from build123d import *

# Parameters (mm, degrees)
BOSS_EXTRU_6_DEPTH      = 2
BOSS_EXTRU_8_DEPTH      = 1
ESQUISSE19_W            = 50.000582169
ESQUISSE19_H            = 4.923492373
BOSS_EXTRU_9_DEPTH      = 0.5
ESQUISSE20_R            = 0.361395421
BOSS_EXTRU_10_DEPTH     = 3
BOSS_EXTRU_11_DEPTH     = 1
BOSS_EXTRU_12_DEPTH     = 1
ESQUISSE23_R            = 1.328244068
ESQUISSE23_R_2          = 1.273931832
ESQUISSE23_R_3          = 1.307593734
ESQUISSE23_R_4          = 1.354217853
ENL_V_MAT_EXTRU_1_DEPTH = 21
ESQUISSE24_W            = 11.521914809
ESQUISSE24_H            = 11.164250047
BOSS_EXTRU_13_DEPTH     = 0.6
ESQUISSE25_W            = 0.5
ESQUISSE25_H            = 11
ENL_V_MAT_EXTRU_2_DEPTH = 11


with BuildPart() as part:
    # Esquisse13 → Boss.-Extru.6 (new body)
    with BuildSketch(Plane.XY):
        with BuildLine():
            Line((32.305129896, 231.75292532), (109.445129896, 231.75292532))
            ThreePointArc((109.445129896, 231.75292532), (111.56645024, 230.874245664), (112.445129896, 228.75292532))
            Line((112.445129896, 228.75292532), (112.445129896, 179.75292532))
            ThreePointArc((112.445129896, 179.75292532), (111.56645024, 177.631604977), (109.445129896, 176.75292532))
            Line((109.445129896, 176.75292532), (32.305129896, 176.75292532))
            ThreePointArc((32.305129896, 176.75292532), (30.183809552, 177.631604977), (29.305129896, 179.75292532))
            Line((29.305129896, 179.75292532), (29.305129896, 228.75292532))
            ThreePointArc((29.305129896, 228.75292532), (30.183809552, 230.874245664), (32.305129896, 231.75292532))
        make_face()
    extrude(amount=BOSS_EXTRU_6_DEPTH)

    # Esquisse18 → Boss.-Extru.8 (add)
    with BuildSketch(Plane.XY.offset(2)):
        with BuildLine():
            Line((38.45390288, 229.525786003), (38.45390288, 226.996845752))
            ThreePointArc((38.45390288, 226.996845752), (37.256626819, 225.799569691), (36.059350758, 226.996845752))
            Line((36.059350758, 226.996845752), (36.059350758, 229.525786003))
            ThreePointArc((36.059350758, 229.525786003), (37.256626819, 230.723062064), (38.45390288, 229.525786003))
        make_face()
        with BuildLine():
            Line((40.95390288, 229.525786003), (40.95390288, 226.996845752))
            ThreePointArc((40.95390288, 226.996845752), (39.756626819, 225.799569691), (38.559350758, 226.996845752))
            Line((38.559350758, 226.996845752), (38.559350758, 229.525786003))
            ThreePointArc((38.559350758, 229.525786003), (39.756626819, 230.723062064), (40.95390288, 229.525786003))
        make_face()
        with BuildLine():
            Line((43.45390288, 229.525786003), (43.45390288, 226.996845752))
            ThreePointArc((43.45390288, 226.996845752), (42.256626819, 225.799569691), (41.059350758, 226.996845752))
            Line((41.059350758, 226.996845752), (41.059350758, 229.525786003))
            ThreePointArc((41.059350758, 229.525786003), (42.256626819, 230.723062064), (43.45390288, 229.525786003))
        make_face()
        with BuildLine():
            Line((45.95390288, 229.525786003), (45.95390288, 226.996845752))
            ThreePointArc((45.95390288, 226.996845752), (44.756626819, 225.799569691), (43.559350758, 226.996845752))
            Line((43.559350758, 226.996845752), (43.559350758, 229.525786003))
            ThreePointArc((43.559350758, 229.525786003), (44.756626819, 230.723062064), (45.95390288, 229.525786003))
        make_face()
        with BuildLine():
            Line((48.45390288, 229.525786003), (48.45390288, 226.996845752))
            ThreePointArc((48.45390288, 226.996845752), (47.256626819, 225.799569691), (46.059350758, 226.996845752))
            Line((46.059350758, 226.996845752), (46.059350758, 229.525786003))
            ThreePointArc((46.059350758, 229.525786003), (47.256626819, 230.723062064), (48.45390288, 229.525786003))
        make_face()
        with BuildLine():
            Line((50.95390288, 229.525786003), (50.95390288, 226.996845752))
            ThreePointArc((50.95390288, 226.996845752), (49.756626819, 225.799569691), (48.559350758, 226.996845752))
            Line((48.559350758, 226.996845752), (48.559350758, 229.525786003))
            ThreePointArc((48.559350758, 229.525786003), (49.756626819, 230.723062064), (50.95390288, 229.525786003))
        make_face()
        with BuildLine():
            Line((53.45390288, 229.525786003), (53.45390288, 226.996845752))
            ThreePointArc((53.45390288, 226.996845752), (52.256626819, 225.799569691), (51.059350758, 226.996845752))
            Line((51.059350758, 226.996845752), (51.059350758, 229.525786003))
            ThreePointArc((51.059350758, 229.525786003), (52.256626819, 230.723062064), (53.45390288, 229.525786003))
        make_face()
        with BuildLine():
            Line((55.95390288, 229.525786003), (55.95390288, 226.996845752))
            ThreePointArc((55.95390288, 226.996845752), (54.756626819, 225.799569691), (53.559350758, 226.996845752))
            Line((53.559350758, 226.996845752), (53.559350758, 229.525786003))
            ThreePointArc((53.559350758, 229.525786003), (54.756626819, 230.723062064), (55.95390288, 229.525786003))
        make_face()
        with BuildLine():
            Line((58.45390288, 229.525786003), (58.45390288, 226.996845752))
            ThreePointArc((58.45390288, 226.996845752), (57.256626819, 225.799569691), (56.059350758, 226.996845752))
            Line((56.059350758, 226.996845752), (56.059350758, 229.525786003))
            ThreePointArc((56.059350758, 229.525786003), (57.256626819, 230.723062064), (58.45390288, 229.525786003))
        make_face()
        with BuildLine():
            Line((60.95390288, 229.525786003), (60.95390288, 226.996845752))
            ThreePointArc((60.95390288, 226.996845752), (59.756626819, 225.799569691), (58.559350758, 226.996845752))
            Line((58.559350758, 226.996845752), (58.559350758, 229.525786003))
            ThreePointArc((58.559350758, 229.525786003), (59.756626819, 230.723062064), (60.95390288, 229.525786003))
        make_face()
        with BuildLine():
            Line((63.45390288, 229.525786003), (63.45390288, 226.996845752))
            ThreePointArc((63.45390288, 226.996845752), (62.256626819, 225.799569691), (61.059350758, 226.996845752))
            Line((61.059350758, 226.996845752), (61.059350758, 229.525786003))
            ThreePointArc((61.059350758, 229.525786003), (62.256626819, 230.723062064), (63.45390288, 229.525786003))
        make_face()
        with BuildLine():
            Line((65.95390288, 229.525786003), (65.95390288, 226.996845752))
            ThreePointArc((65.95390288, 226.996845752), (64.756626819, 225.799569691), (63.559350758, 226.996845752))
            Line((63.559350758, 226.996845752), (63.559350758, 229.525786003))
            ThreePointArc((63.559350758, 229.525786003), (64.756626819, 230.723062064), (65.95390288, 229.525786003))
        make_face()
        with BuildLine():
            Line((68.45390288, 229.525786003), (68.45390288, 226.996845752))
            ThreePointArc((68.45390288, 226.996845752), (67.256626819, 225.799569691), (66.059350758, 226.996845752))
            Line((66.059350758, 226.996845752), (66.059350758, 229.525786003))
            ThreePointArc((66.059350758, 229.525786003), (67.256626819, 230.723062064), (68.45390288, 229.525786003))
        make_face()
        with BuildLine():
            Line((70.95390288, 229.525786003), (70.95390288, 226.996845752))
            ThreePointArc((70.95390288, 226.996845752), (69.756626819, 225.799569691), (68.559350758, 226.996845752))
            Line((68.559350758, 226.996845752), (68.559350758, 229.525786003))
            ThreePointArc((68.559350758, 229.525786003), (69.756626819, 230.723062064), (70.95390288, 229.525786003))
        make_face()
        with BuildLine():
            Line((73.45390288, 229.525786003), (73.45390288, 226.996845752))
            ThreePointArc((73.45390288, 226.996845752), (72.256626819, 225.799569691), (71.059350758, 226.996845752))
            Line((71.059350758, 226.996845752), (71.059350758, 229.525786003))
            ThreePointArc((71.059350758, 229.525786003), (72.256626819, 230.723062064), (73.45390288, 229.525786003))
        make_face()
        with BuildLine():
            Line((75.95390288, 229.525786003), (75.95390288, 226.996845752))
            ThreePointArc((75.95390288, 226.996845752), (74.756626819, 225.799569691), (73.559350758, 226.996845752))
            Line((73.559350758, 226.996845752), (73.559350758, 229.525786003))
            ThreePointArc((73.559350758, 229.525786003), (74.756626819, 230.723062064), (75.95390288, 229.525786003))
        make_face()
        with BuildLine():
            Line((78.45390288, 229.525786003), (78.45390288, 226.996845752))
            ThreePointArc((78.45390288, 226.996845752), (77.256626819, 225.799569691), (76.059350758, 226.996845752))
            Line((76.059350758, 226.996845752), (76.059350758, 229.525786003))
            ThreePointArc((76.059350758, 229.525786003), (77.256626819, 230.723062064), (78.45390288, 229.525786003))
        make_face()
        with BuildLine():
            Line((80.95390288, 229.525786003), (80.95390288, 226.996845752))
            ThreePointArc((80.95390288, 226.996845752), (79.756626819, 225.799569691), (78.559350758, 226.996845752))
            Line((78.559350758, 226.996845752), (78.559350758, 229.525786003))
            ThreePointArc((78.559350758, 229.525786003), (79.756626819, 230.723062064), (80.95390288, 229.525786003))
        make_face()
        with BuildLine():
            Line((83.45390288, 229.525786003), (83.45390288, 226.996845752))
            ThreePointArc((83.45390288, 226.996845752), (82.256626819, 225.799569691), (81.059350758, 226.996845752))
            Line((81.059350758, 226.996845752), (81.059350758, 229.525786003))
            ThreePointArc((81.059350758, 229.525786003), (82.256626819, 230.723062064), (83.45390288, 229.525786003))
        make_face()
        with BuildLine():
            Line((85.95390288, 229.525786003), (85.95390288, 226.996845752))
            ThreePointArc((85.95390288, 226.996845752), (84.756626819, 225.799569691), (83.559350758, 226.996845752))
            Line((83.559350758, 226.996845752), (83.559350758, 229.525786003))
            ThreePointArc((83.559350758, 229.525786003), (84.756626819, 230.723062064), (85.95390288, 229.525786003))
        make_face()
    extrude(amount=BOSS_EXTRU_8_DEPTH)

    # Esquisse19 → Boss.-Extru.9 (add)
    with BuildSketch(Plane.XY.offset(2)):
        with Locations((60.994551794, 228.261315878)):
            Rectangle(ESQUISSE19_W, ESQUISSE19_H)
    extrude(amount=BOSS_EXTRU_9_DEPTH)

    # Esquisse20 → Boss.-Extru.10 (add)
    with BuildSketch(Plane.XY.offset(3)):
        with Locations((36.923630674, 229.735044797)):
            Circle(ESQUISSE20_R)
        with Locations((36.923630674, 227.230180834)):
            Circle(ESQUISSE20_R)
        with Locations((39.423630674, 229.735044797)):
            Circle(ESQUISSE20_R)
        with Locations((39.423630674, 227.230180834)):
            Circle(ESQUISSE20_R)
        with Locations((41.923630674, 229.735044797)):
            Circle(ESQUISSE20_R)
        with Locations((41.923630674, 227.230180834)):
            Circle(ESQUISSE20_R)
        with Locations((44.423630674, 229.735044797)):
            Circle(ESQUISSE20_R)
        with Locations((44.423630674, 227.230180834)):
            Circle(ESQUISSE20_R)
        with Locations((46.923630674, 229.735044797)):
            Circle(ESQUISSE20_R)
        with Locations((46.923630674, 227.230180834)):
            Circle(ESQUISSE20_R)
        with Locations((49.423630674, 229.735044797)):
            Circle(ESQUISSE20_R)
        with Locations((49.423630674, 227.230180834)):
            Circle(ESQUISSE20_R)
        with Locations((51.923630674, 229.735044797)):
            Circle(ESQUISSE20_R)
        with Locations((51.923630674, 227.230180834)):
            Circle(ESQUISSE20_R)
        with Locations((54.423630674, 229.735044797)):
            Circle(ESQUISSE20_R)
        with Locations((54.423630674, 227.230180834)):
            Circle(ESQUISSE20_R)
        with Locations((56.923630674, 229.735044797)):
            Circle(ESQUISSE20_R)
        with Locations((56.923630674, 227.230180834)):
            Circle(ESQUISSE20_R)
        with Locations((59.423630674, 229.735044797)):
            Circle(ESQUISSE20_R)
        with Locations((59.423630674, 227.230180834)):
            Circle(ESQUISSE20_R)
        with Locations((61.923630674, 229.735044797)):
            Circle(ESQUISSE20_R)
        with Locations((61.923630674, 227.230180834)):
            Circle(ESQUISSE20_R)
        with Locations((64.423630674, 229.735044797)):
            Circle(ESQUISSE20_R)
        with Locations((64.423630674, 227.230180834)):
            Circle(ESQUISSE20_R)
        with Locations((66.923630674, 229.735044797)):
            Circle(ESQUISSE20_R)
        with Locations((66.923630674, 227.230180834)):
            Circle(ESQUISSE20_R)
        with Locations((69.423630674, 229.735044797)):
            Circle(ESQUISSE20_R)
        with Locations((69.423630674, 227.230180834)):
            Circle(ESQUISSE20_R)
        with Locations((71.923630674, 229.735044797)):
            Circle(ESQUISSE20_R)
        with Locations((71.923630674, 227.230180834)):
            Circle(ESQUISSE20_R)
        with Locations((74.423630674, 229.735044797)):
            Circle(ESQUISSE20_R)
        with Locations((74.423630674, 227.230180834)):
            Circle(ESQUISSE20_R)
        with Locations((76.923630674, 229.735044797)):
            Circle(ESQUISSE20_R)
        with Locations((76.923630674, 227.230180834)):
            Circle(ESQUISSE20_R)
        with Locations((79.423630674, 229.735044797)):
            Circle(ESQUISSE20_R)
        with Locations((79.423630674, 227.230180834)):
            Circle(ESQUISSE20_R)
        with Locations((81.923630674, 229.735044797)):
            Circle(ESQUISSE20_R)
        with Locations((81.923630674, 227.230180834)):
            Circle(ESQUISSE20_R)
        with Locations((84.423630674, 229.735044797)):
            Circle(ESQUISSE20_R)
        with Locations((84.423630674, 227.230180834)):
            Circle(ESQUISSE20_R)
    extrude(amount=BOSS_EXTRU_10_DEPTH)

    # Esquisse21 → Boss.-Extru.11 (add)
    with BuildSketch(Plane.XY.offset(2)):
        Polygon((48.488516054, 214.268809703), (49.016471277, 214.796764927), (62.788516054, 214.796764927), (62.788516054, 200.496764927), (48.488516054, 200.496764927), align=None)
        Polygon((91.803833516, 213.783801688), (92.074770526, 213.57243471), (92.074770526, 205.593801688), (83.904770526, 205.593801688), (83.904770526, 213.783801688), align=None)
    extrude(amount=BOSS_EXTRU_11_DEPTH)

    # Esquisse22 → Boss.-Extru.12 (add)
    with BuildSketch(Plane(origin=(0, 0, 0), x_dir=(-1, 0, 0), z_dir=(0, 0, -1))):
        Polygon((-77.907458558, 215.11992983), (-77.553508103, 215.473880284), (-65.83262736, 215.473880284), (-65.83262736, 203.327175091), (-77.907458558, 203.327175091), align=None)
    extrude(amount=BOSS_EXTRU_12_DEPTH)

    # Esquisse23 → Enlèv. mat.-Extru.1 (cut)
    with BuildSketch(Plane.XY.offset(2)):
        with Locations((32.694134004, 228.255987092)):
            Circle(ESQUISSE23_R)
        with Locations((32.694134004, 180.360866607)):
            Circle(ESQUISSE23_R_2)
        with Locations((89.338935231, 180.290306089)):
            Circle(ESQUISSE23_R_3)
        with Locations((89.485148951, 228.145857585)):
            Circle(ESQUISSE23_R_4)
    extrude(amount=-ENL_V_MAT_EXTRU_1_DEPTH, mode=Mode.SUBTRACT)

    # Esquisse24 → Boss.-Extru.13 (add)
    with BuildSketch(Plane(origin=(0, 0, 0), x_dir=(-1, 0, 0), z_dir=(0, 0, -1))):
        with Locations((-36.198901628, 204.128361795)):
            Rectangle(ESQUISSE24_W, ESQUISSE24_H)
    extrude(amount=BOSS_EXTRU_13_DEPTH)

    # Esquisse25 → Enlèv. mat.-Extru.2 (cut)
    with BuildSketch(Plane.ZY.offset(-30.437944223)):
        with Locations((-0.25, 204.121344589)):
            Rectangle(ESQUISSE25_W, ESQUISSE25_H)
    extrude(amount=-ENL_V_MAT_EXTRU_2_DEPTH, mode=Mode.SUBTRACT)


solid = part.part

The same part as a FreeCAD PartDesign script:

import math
import FreeCAD as App
import Part
import Sketcher
from FreeCAD import Vector
Q = App.Units.Quantity

doc = App.newDocument("Part")
body = doc.addObject("PartDesign::Body", "Body")

sketch1 = body.newObject("Sketcher::SketchObject", "Sketch")
sketch1.AttachmentSupport = (doc.getObject("XY_Plane"), [""])
sketch1.MapMode = "FlatFace"
sketch1.addGeometry([
    Part.LineSegment(Vector(109.4, 231.8, 0), Vector(32.3, 231.8, 0)),
    Part.ArcOfCircle(Part.Circle(Vector(32.3, 228.8, 0), Vector(0, 0, 1), 3), math.radians(90), math.radians(180)),
    Part.LineSegment(Vector(29.3, 228.8, 0), Vector(29.3, 179.8, 0)),
    Part.ArcOfCircle(Part.Circle(Vector(32.3, 179.8, 0), Vector(0, 0, 1), 3), math.radians(180), math.radians(270)),
    Part.LineSegment(Vector(32.3, 176.8, 0), Vector(109.4, 176.8, 0)),
    Part.ArcOfCircle(Part.Circle(Vector(109.4, 179.8, 0), Vector(0, 0, 1), 3), math.radians(-90), math.radians(0)),
    Part.LineSegment(Vector(112.4, 179.8, 0), Vector(112.4, 228.8, 0)),
    Part.ArcOfCircle(Part.Circle(Vector(109.4, 228.8, 0), Vector(0, 0, 1), 3), math.radians(0), math.radians(90)),
], False)
sketch1.addConstraint([
    Sketcher.Constraint("Tangent", 0, 2, 1, 1),
    Sketcher.Constraint("Tangent", 1, 2, 2, 1),
    Sketcher.Constraint("Tangent", 2, 2, 3, 1),
    Sketcher.Constraint("Tangent", 3, 2, 4, 1),
    Sketcher.Constraint("Tangent", 4, 2, 5, 1),
    Sketcher.Constraint("Tangent", 5, 2, 6, 1),
    Sketcher.Constraint("Tangent", 6, 2, 7, 1),
    Sketcher.Constraint("Tangent", 7, 2, 0, 1),
    Sketcher.Constraint("Horizontal", 0),
    Sketcher.Constraint("Vertical", 2),
    Sketcher.Constraint("Horizontal", 4),
    Sketcher.Constraint("Vertical", 6),
    Sketcher.Constraint("Equal", 1, 3),
    Sketcher.Constraint("Equal", 3, 5),
    Sketcher.Constraint("Equal", 5, 7),
    Sketcher.Constraint("Radius", 1, 3.0),
    Sketcher.Constraint("DistanceY", 2, 2, 2, 1, 49.0),
    Sketcher.Constraint("DistanceX", 0, 2, 0, 1, 77.14),
    Sketcher.Constraint("DistanceX", -1, 1, 1, 3, 32.30513),
    Sketcher.Constraint("DistanceY", -1, 1, 1, 3, 228.752925),
])
pad1 = body.newObject("PartDesign::Pad", "Pad")
pad1.Profile = sketch1
pad1.Length = 2

sketch2 = body.newObject("Sketcher::SketchObject", "Sketch001")
sketch2.AttachmentSupport = (doc.getObject("XY_Plane"), [""])
sketch2.MapMode = "FlatFace"
sketch2.AttachmentOffset = App.Placement(Vector(0, 0, 2), App.Rotation())
sketch2.addGeometry([
    Part.LineSegment(Vector(38.5, 227, 0), Vector(38.5, 229.5, 0)),
    Part.ArcOfCircle(Part.Circle(Vector(37.3, 229.5, 0), Vector(0, 0, 1), 1.2), math.radians(0), math.radians(180)),
    Part.LineSegment(Vector(36.1, 229.5, 0), Vector(36.1, 227, 0)),
    Part.ArcOfCircle(Part.Circle(Vector(37.3, 227, 0), Vector(0, 0, 1), 1.2), math.radians(180), math.radians(360)),
    Part.LineSegment(Vector(41, 227, 0), Vector(41, 229.5, 0)),
    Part.ArcOfCircle(Part.Circle(Vector(39.8, 229.5, 0), Vector(0, 0, 1), 1.2), math.radians(0), math.radians(180)),
    Part.LineSegment(Vector(38.6, 229.5, 0), Vector(38.6, 227, 0)),
    Part.ArcOfCircle(Part.Circle(Vector(39.8, 227, 0), Vector(0, 0, 1), 1.2), math.radians(180), math.radians(360)),
    Part.LineSegment(Vector(43.5, 227, 0), Vector(43.5, 229.5, 0)),
    Part.ArcOfCircle(Part.Circle(Vector(42.3, 229.5, 0), Vector(0, 0, 1), 1.2), math.radians(0), math.radians(180)),
    Part.LineSegment(Vector(41.1, 229.5, 0), Vector(41.1, 227, 0)),
    Part.ArcOfCircle(Part.Circle(Vector(42.3, 227, 0), Vector(0, 0, 1), 1.2), math.radians(180), math.radians(360)),
    Part.LineSegment(Vector(46, 227, 0), Vector(46, 229.5, 0)),
    Part.ArcOfCircle(Part.Circle(Vector(44.8, 229.5, 0), Vector(0, 0, 1), 1.2), math.radians(0), math.radians(180)),
    Part.LineSegment(Vector(43.6, 229.5, 0), Vector(43.6, 227, 0)),
    Part.ArcOfCircle(Part.Circle(Vector(44.8, 227, 0), Vector(0, 0, 1), 1.2), math.radians(180), math.radians(360)),
    Part.LineSegment(Vector(48.5, 227, 0), Vector(48.5, 229.5, 0)),
    Part.ArcOfCircle(Part.Circle(Vector(47.3, 229.5, 0), Vector(0, 0, 1), 1.2), math.radians(0), math.radians(180)),
    Part.LineSegment(Vector(46.1, 229.5, 0), Vector(46.1, 227, 0)),
    Part.ArcOfCircle(Part.Circle(Vector(47.3, 227, 0), Vector(0, 0, 1), 1.2), math.radians(180), math.radians(360)),
    Part.LineSegment(Vector(51, 227, 0), Vector(51, 229.5, 0)),
    Part.ArcOfCircle(Part.Circle(Vector(49.8, 229.5, 0), Vector(0, 0, 1), 1.2), math.radians(0), math.radians(180)),
    Part.LineSegment(Vector(48.6, 229.5, 0), Vector(48.6, 227, 0)),
    Part.ArcOfCircle(Part.Circle(Vector(49.8, 227, 0), Vector(0, 0, 1), 1.2), math.radians(180), math.radians(360)),
    Part.LineSegment(Vector(53.5, 227, 0), Vector(53.5, 229.5, 0)),
    Part.ArcOfCircle(Part.Circle(Vector(52.3, 229.5, 0), Vector(0, 0, 1), 1.2), math.radians(0), math.radians(180)),
    Part.LineSegment(Vector(51.1, 229.5, 0), Vector(51.1, 227, 0)),
    Part.ArcOfCircle(Part.Circle(Vector(52.3, 227, 0), Vector(0, 0, 1), 1.2), math.radians(180), math.radians(360)),
    Part.LineSegment(Vector(56, 227, 0), Vector(56, 229.5, 0)),
    Part.ArcOfCircle(Part.Circle(Vector(54.8, 229.5, 0), Vector(0, 0, 1), 1.2), math.radians(0), math.radians(180)),
    Part.LineSegment(Vector(53.6, 229.5, 0), Vector(53.6, 227, 0)),
    Part.ArcOfCircle(Part.Circle(Vector(54.8, 227, 0), Vector(0, 0, 1), 1.2), math.radians(180), math.radians(360)),
    Part.LineSegment(Vector(58.5, 227, 0), Vector(58.5, 229.5, 0)),
    Part.ArcOfCircle(Part.Circle(Vector(57.3, 229.5, 0), Vector(0, 0, 1), 1.2), math.radians(0), math.radians(180)),
    Part.LineSegment(Vector(56.1, 229.5, 0), Vector(56.1, 227, 0)),
    Part.ArcOfCircle(Part.Circle(Vector(57.3, 227, 0), Vector(0, 0, 1), 1.2), math.radians(180), math.radians(360)),
    Part.LineSegment(Vector(61, 227, 0), Vector(61, 229.5, 0)),
    Part.ArcOfCircle(Part.Circle(Vector(59.8, 229.5, 0), Vector(0, 0, 1), 1.2), math.radians(0), math.radians(180)),
    Part.LineSegment(Vector(58.6, 229.5, 0), Vector(58.6, 227, 0)),
    Part.ArcOfCircle(Part.Circle(Vector(59.8, 227, 0), Vector(0, 0, 1), 1.2), math.radians(180), math.radians(360)),
    Part.LineSegment(Vector(63.5, 227, 0), Vector(63.5, 229.5, 0)),
    Part.ArcOfCircle(Part.Circle(Vector(62.3, 229.5, 0), Vector(0, 0, 1), 1.2), math.radians(0), math.radians(180)),
    Part.LineSegment(Vector(61.1, 229.5, 0), Vector(61.1, 227, 0)),
    Part.ArcOfCircle(Part.Circle(Vector(62.3, 227, 0), Vector(0, 0, 1), 1.2), math.radians(180), math.radians(360)),
    Part.LineSegment(Vector(66, 227, 0), Vector(66, 229.5, 0)),
    Part.ArcOfCircle(Part.Circle(Vector(64.8, 229.5, 0), Vector(0, 0, 1), 1.2), math.radians(0), math.radians(180)),
    Part.LineSegment(Vector(63.6, 229.5, 0), Vector(63.6, 227, 0)),
    Part.ArcOfCircle(Part.Circle(Vector(64.8, 227, 0), Vector(0, 0, 1), 1.2), math.radians(180), math.radians(360)),
    Part.LineSegment(Vector(68.5, 227, 0), Vector(68.5, 229.5, 0)),
    Part.ArcOfCircle(Part.Circle(Vector(67.3, 229.5, 0), Vector(0, 0, 1), 1.2), math.radians(0), math.radians(180)),
    Part.LineSegment(Vector(66.1, 229.5, 0), Vector(66.1, 227, 0)),
    Part.ArcOfCircle(Part.Circle(Vector(67.3, 227, 0), Vector(0, 0, 1), 1.2), math.radians(180), math.radians(360)),
    Part.LineSegment(Vector(71, 227, 0), Vector(71, 229.5, 0)),
    Part.ArcOfCircle(Part.Circle(Vector(69.8, 229.5, 0), Vector(0, 0, 1), 1.2), math.radians(0), math.radians(180)),
    Part.LineSegment(Vector(68.6, 229.5, 0), Vector(68.6, 227, 0)),
    Part.ArcOfCircle(Part.Circle(Vector(69.8, 227, 0), Vector(0, 0, 1), 1.2), math.radians(180), math.radians(360)),
    Part.LineSegment(Vector(73.5, 227, 0), Vector(73.5, 229.5, 0)),
    Part.ArcOfCircle(Part.Circle(Vector(72.3, 229.5, 0), Vector(0, 0, 1), 1.2), math.radians(0), math.radians(180)),
    Part.LineSegment(Vector(71.1, 229.5, 0), Vector(71.1, 227, 0)),
    Part.ArcOfCircle(Part.Circle(Vector(72.3, 227, 0), Vector(0, 0, 1), 1.2), math.radians(180), math.radians(360)),
    Part.LineSegment(Vector(76, 227, 0), Vector(76, 229.5, 0)),
    Part.ArcOfCircle(Part.Circle(Vector(74.8, 229.5, 0), Vector(0, 0, 1), 1.2), math.radians(0), math.radians(180)),
    Part.LineSegment(Vector(73.6, 229.5, 0), Vector(73.6, 227, 0)),
    Part.ArcOfCircle(Part.Circle(Vector(74.8, 227, 0), Vector(0, 0, 1), 1.2), math.radians(180), math.radians(360)),
    Part.LineSegment(Vector(78.5, 227, 0), Vector(78.5, 229.5, 0)),
    Part.ArcOfCircle(Part.Circle(Vector(77.3, 229.5, 0), Vector(0, 0, 1), 1.2), math.radians(0), math.radians(180)),
    Part.LineSegment(Vector(76.1, 229.5, 0), Vector(76.1, 227, 0)),
    Part.ArcOfCircle(Part.Circle(Vector(77.3, 227, 0), Vector(0, 0, 1), 1.2), math.radians(180), math.radians(360)),
    Part.LineSegment(Vector(81, 227, 0), Vector(81, 229.5, 0)),
    Part.ArcOfCircle(Part.Circle(Vector(79.8, 229.5, 0), Vector(0, 0, 1), 1.2), math.radians(0), math.radians(180)),
    Part.LineSegment(Vector(78.6, 229.5, 0), Vector(78.6, 227, 0)),
    Part.ArcOfCircle(Part.Circle(Vector(79.8, 227, 0), Vector(0, 0, 1), 1.2), math.radians(180), math.radians(360)),
    Part.LineSegment(Vector(83.5, 227, 0), Vector(83.5, 229.5, 0)),
    Part.ArcOfCircle(Part.Circle(Vector(82.3, 229.5, 0), Vector(0, 0, 1), 1.2), math.radians(0), math.radians(180)),
    Part.LineSegment(Vector(81.1, 229.5, 0), Vector(81.1, 227, 0)),
    Part.ArcOfCircle(Part.Circle(Vector(82.3, 227, 0), Vector(0, 0, 1), 1.2), math.radians(180), math.radians(360)),
    Part.LineSegment(Vector(86, 227, 0), Vector(86, 229.5, 0)),
    Part.ArcOfCircle(Part.Circle(Vector(84.8, 229.5, 0), Vector(0, 0, 1), 1.2), math.radians(0), math.radians(180)),
    Part.LineSegment(Vector(83.6, 229.5, 0), Vector(83.6, 227, 0)),
    Part.ArcOfCircle(Part.Circle(Vector(84.8, 227, 0), Vector(0, 0, 1), 1.2), math.radians(180), math.radians(360)),
], False)
sketch2.addConstraint([
    Sketcher.Constraint("Tangent", 0, 2, 1, 1),
    Sketcher.Constraint("Tangent", 1, 2, 2, 1),
    Sketcher.Constraint("Tangent", 2, 2, 3, 1),
    Sketcher.Constraint("Tangent", 3, 2, 0, 1),
    Sketcher.Constraint("Tangent", 4, 2, 5, 1),
    Sketcher.Constraint("Tangent", 5, 2, 6, 1),
    Sketcher.Constraint("Tangent", 6, 2, 7, 1),
    Sketcher.Constraint("Tangent", 7, 2, 4, 1),
    Sketcher.Constraint("Tangent", 8, 2, 9, 1),
    Sketcher.Constraint("Tangent", 9, 2, 10, 1),
    Sketcher.Constraint("Tangent", 10, 2, 11, 1),
    Sketcher.Constraint("Tangent", 11, 2, 8, 1),
    Sketcher.Constraint("Tangent", 12, 2, 13, 1),
    Sketcher.Constraint("Tangent", 13, 2, 14, 1),
    Sketcher.Constraint("Tangent", 14, 2, 15, 1),
    Sketcher.Constraint("Tangent", 15, 2, 12, 1),
    Sketcher.Constraint("Tangent", 16, 2, 17, 1),
    Sketcher.Constraint("Tangent", 17, 2, 18, 1),
    Sketcher.Constraint("Tangent", 18, 2, 19, 1),
    Sketcher.Constraint("Tangent", 19, 2, 16, 1),
    Sketcher.Constraint("Tangent", 20, 2, 21, 1),
    Sketcher.Constraint("Tangent", 21, 2, 22, 1),
    Sketcher.Constraint("Tangent", 22, 2, 23, 1),
    Sketcher.Constraint("Tangent", 23, 2, 20, 1),
    Sketcher.Constraint("Tangent", 24, 2, 25, 1),
    Sketcher.Constraint("Tangent", 25, 2, 26, 1),
    Sketcher.Constraint("Tangent", 26, 2, 27, 1),
    Sketcher.Constraint("Tangent", 27, 2, 24, 1),
    Sketcher.Constraint("Tangent", 28, 2, 29, 1),
    Sketcher.Constraint("Tangent", 29, 2, 30, 1),
    Sketcher.Constraint("Tangent", 30, 2, 31, 1),
    Sketcher.Constraint("Tangent", 31, 2, 28, 1),
    Sketcher.Constraint("Tangent", 32, 2, 33, 1),
    Sketcher.Constraint("Tangent", 33, 2, 34, 1),
    Sketcher.Constraint("Tangent", 34, 2, 35, 1),
    Sketcher.Constraint("Tangent", 35, 2, 32, 1),
    Sketcher.Constraint("Tangent", 36, 2, 37, 1),
    Sketcher.Constraint("Tangent", 37, 2, 38, 1),
    Sketcher.Constraint("Tangent", 38, 2, 39, 1),
    Sketcher.Constraint("Tangent", 39, 2, 36, 1),
    Sketcher.Constraint("Tangent", 40, 2, 41, 1),
    Sketcher.Constraint("Tangent", 41, 2, 42, 1),
    Sketcher.Constraint("Tangent", 42, 2, 43, 1),
    Sketcher.Constraint("Tangent", 43, 2, 40, 1),
    Sketcher.Constraint("Tangent", 44, 2, 45, 1),
    Sketcher.Constraint("Tangent", 45, 2, 46, 1),
    Sketcher.Constraint("Tangent", 46, 2, 47, 1),
    Sketcher.Constraint("Tangent", 47, 2, 44, 1),
    Sketcher.Constraint("Tangent", 48, 2, 49, 1),
    Sketcher.Constraint("Tangent", 49, 2, 50, 1),
    Sketcher.Constraint("Tangent", 50, 2, 51, 1),
    Sketcher.Constraint("Tangent", 51, 2, 48, 1),
    Sketcher.Constraint("Tangent", 52, 2, 53, 1),
    Sketcher.Constraint("Tangent", 53, 2, 54, 1),
    Sketcher.Constraint("Tangent", 54, 2, 55, 1),
    Sketcher.Constraint("Tangent", 55, 2, 52, 1),
    Sketcher.Constraint("Tangent", 56, 2, 57, 1),
    Sketcher.Constraint("Tangent", 57, 2, 58, 1),
    Sketcher.Constraint("Tangent", 58, 2, 59, 1),
    Sketcher.Constraint("Tangent", 59, 2, 56, 1),
    Sketcher.Constraint("Tangent", 60, 2, 61, 1),
    Sketcher.Constraint("Tangent", 61, 2, 62, 1),
    Sketcher.Constraint("Tangent", 62, 2, 63, 1),
    Sketcher.Constraint("Tangent", 63, 2, 60, 1),
    Sketcher.Constraint("Tangent", 64, 2, 65, 1),
    Sketcher.Constraint("Tangent", 65, 2, 66, 1),
    Sketcher.Constraint("Tangent", 66, 2, 67, 1),
    Sketcher.Constraint("Tangent", 67, 2, 64, 1),
    Sketcher.Constraint("Tangent", 68, 2, 69, 1),
    Sketcher.Constraint("Tangent", 69, 2, 70, 1),
    Sketcher.Constraint("Tangent", 70, 2, 71, 1),
    Sketcher.Constraint("Tangent", 71, 2, 68, 1),
    Sketcher.Constraint("Tangent", 72, 2, 73, 1),
    Sketcher.Constraint("Tangent", 73, 2, 74, 1),
    Sketcher.Constraint("Tangent", 74, 2, 75, 1),
    Sketcher.Constraint("Tangent", 75, 2, 72, 1),
    Sketcher.Constraint("Tangent", 76, 2, 77, 1),
    Sketcher.Constraint("Tangent", 77, 2, 78, 1),
    Sketcher.Constraint("Tangent", 78, 2, 79, 1),
    Sketcher.Constraint("Tangent", 79, 2, 76, 1),
    Sketcher.Constraint("Vertical", 0),
    Sketcher.Constraint("Vertical", 2),
    Sketcher.Constraint("Vertical", 4),
    Sketcher.Constraint("Vertical", 6),
    Sketcher.Constraint("Vertical", 8),
    Sketcher.Constraint("Vertical", 10),
    Sketcher.Constraint("Vertical", 12),
    Sketcher.Constraint("Vertical", 14),
    Sketcher.Constraint("Vertical", 16),
    Sketcher.Constraint("Vertical", 18),
    Sketcher.Constraint("Vertical", 20),
    Sketcher.Constraint("Vertical", 22),
    Sketcher.Constraint("Vertical", 24),
    Sketcher.Constraint("Vertical", 26),
    Sketcher.Constraint("Vertical", 28),
    Sketcher.Constraint("Vertical", 30),
    Sketcher.Constraint("Vertical", 32),
    Sketcher.Constraint("Vertical", 34),
    Sketcher.Constraint("Vertical", 36),
    Sketcher.Constraint("Vertical", 38),
    Sketcher.Constraint("Vertical", 40),
    Sketcher.Constraint("Vertical", 42),
    Sketcher.Constraint("Vertical", 44),
    Sketcher.Constraint("Vertical", 46),
    Sketcher.Constraint("Vertical", 48),
    Sketcher.Constraint("Vertical", 50),
    Sketcher.Constraint("Vertical", 52),
    Sketcher.Constraint("Vertical", 54),
    Sketcher.Constraint("Vertical", 56),
    Sketcher.Constraint("Vertical", 58),
    Sketcher.Constraint("Vertical", 60),
    Sketcher.Constraint("Vertical", 62),
    Sketcher.Constraint("Vertical", 64),
    Sketcher.Constraint("Vertical", 66),
    Sketcher.Constraint("Vertical", 68),
    Sketcher.Constraint("Vertical", 70),
    Sketcher.Constraint("Vertical", 72),
    Sketcher.Constraint("Vertical", 74),
    Sketcher.Constraint("Vertical", 76),
    Sketcher.Constraint("Vertical", 78),
    Sketcher.Constraint("Equal", 3, 5),
    Sketcher.Constraint("Equal", 7, 9),
    Sketcher.Constraint("Equal", 11, 13),
    Sketcher.Constraint("Equal", 15, 17),
    Sketcher.Constraint("Equal", 19, 21),
    Sketcher.Constraint("Equal", 23, 25),
    Sketcher.Constraint("Equal", 27, 29),
    Sketcher.Constraint("Equal", 31, 33),
    Sketcher.Constraint("Equal", 35, 37),
    Sketcher.Constraint("Equal", 39, 41),
    Sketcher.Constraint("Equal", 43, 45),
    Sketcher.Constraint("Equal", 47, 49),
    Sketcher.Constraint("Equal", 51, 53),
    Sketcher.Constraint("Equal", 55, 57),
    Sketcher.Constraint("Equal", 59, 61),
    Sketcher.Constraint("Equal", 63, 65),
    Sketcher.Constraint("Equal", 67, 69),
    Sketcher.Constraint("Equal", 71, 73),
    Sketcher.Constraint("Equal", 75, 77),
    Sketcher.Constraint("Horizontal", 1, 3, 5, 3),
    Sketcher.Constraint("Horizontal", 3, 3, 7, 3),
    Sketcher.Constraint("Horizontal", 5, 3, 9, 3),
    Sketcher.Constraint("Horizontal", 7, 3, 11, 3),
    Sketcher.Constraint("Horizontal", 9, 3, 13, 3),
    Sketcher.Constraint("Horizontal", 11, 3, 15, 3),
    Sketcher.Constraint("Horizontal", 13, 3, 17, 3),
    Sketcher.Constraint("Horizontal", 15, 3, 19, 3),
    Sketcher.Constraint("Horizontal", 17, 3, 21, 3),
    Sketcher.Constraint("Horizontal", 19, 3, 23, 3),
    Sketcher.Constraint("Horizontal", 21, 3, 25, 3),
    Sketcher.Constraint("Horizontal", 23, 3, 27, 3),
    Sketcher.Constraint("Horizontal", 25, 3, 29, 3),
    Sketcher.Constraint("Horizontal", 27, 3, 31, 3),
    Sketcher.Constraint("Horizontal", 29, 3, 33, 3),
    Sketcher.Constraint("Horizontal", 31, 3, 35, 3),
    Sketcher.Constraint("Horizontal", 33, 3, 37, 3),
    Sketcher.Constraint("Horizontal", 35, 3, 39, 3),
    Sketcher.Constraint("Horizontal", 37, 3, 41, 3),
    Sketcher.Constraint("Horizontal", 39, 3, 43, 3),
    Sketcher.Constraint("Horizontal", 41, 3, 45, 3),
    Sketcher.Constraint("Horizontal", 43, 3, 47, 3),
    Sketcher.Constraint("Horizontal", 45, 3, 49, 3),
    Sketcher.Constraint("Horizontal", 47, 3, 51, 3),
    Sketcher.Constraint("Horizontal", 49, 3, 53, 3),
    Sketcher.Constraint("Horizontal", 51, 3, 55, 3),
    Sketcher.Constraint("Horizontal", 53, 3, 57, 3),
    Sketcher.Constraint("Horizontal", 55, 3, 59, 3),
    Sketcher.Constraint("Horizontal", 57, 3, 61, 3),
    Sketcher.Constraint("Horizontal", 59, 3, 63, 3),
    Sketcher.Constraint("Horizontal", 61, 3, 65, 3),
    Sketcher.Constraint("Horizontal", 63, 3, 67, 3),
    Sketcher.Constraint("Horizontal", 65, 3, 69, 3),
    Sketcher.Constraint("Horizontal", 67, 3, 71, 3),
    Sketcher.Constraint("Horizontal", 69, 3, 73, 3),
    Sketcher.Constraint("Horizontal", 71, 3, 75, 3),
    Sketcher.Constraint("Horizontal", 73, 3, 77, 3),
    Sketcher.Constraint("Horizontal", 75, 3, 79, 3),
    Sketcher.Constraint("Radius", 1, 1.197276),
    Sketcher.Constraint("DistanceY", 0, 1, 0, 2, 2.52894),
    Sketcher.Constraint("DistanceX", -1, 1, 1, 2, 36.059351),
    Sketcher.Constraint("DistanceX", -1, 1, 5, 2, 38.559351),
    Sketcher.Constraint("DistanceX", -1, 1, 9, 2, 41.059351),
    Sketcher.Constraint("DistanceX", -1, 1, 13, 2, 43.559351),
    Sketcher.Constraint("DistanceX", -1, 1, 17, 2, 46.059351),
    Sketcher.Constraint("DistanceX", -1, 1, 21, 2, 48.559351),
    Sketcher.Constraint("DistanceX", -1, 1, 25, 2, 51.059351),
    Sketcher.Constraint("DistanceX", -1, 1, 29, 2, 53.559351),
    Sketcher.Constraint("DistanceX", -1, 1, 33, 2, 56.059351),
    Sketcher.Constraint("DistanceX", -1, 1, 37, 2, 58.559351),
    Sketcher.Constraint("DistanceX", -1, 1, 41, 2, 61.059351),
    Sketcher.Constraint("DistanceX", -1, 1, 45, 2, 63.559351),
    Sketcher.Constraint("DistanceX", -1, 1, 49, 2, 66.059351),
    Sketcher.Constraint("DistanceX", -1, 1, 53, 2, 68.559351),
    Sketcher.Constraint("DistanceX", -1, 1, 57, 2, 71.059351),
    Sketcher.Constraint("DistanceX", -1, 1, 61, 2, 73.559351),
    Sketcher.Constraint("DistanceX", -1, 1, 65, 2, 76.059351),
    Sketcher.Constraint("DistanceX", -1, 1, 69, 2, 78.559351),
    Sketcher.Constraint("DistanceX", -1, 1, 73, 2, 81.059351),
    Sketcher.Constraint("DistanceX", -1, 1, 77, 2, 83.559351),
    Sketcher.Constraint("DistanceY", -1, 1, 1, 3, 229.525786),
])
pad2 = body.newObject("PartDesign::Pad", "Pad001")
pad2.Profile = sketch2
pad2.Length = 1

sketch3 = body.newObject("Sketcher::SketchObject", "Sketch002")
sketch3.AttachmentSupport = (doc.getObject("XY_Plane"), [""])
sketch3.MapMode = "FlatFace"
sketch3.AttachmentOffset = App.Placement(Vector(0, 0, 2), App.Rotation())
sketch3.addGeometry([
    Part.LineSegment(Vector(36, 230.7, 0), Vector(36, 225.8, 0)),
    Part.LineSegment(Vector(36, 225.8, 0), Vector(86, 225.8, 0)),
    Part.LineSegment(Vector(86, 225.8, 0), Vector(86, 230.7, 0)),
    Part.LineSegment(Vector(86, 230.7, 0), Vector(36, 230.7, 0)),
], False)
sketch3.addConstraint([
    Sketcher.Constraint("Coincident", 0, 2, 1, 1),
    Sketcher.Constraint("Coincident", 1, 2, 2, 1),
    Sketcher.Constraint("Coincident", 2, 2, 3, 1),
    Sketcher.Constraint("Coincident", 3, 2, 0, 1),
    Sketcher.Constraint("Vertical", 0),
    Sketcher.Constraint("Horizontal", 1),
    Sketcher.Constraint("Vertical", 2),
    Sketcher.Constraint("Horizontal", 3),
    Sketcher.Constraint("DistanceX", 1, 1, 1, 2, 50.000582),
    Sketcher.Constraint("DistanceY", 0, 2, 0, 1, 4.923492),
    Sketcher.Constraint("DistanceX", -1, 1, 0, 2, 35.994261),
    Sketcher.Constraint("DistanceY", -1, 1, 0, 2, 225.79957),
])
pad3 = body.newObject("PartDesign::Pad", "Pad002")
pad3.Profile = sketch3
pad3.Length = 0.5

sketch4 = body.newObject("Sketcher::SketchObject", "Sketch003")
sketch4.AttachmentSupport = (doc.getObject("XY_Plane"), [""])
sketch4.MapMode = "FlatFace"
sketch4.AttachmentOffset = App.Placement(Vector(0, 0, 3), App.Rotation())
sketch4.addGeometry([
    Part.Circle(Vector(36.92, 229.74, 0), Vector(0, 0, 1), 0.36),
    Part.Circle(Vector(36.92, 227.23, 0), Vector(0, 0, 1), 0.36),
    Part.Circle(Vector(39.42, 229.74, 0), Vector(0, 0, 1), 0.36),
    Part.Circle(Vector(39.42, 227.23, 0), Vector(0, 0, 1), 0.36),
    Part.Circle(Vector(41.92, 229.74, 0), Vector(0, 0, 1), 0.36),
    Part.Circle(Vector(41.92, 227.23, 0), Vector(0, 0, 1), 0.36),
    Part.Circle(Vector(44.42, 229.74, 0), Vector(0, 0, 1), 0.36),
    Part.Circle(Vector(44.42, 227.23, 0), Vector(0, 0, 1), 0.36),
    Part.Circle(Vector(46.92, 229.74, 0), Vector(0, 0, 1), 0.36),
    Part.Circle(Vector(46.92, 227.23, 0), Vector(0, 0, 1), 0.36),
    Part.Circle(Vector(49.42, 229.74, 0), Vector(0, 0, 1), 0.36),
    Part.Circle(Vector(49.42, 227.23, 0), Vector(0, 0, 1), 0.36),
    Part.Circle(Vector(51.92, 229.74, 0), Vector(0, 0, 1), 0.36),
    Part.Circle(Vector(51.92, 227.23, 0), Vector(0, 0, 1), 0.36),
    Part.Circle(Vector(54.42, 229.74, 0), Vector(0, 0, 1), 0.36),
    Part.Circle(Vector(54.42, 227.23, 0), Vector(0, 0, 1), 0.36),
    Part.Circle(Vector(56.92, 229.74, 0), Vector(0, 0, 1), 0.36),
    Part.Circle(Vector(56.92, 227.23, 0), Vector(0, 0, 1), 0.36),
    Part.Circle(Vector(59.42, 229.74, 0), Vector(0, 0, 1), 0.36),
    Part.Circle(Vector(59.42, 227.23, 0), Vector(0, 0, 1), 0.36),
    Part.Circle(Vector(61.92, 229.74, 0), Vector(0, 0, 1), 0.36),
    Part.Circle(Vector(61.92, 227.23, 0), Vector(0, 0, 1), 0.36),
    Part.Circle(Vector(64.42, 229.74, 0), Vector(0, 0, 1), 0.36),
    Part.Circle(Vector(64.42, 227.23, 0), Vector(0, 0, 1), 0.36),
    Part.Circle(Vector(66.92, 229.74, 0), Vector(0, 0, 1), 0.36),
    Part.Circle(Vector(66.92, 227.23, 0), Vector(0, 0, 1), 0.36),
    Part.Circle(Vector(69.42, 229.74, 0), Vector(0, 0, 1), 0.36),
    Part.Circle(Vector(69.42, 227.23, 0), Vector(0, 0, 1), 0.36),
    Part.Circle(Vector(71.92, 229.74, 0), Vector(0, 0, 1), 0.36),
    Part.Circle(Vector(71.92, 227.23, 0), Vector(0, 0, 1), 0.36),
    Part.Circle(Vector(74.42, 229.74, 0), Vector(0, 0, 1), 0.36),
    Part.Circle(Vector(74.42, 227.23, 0), Vector(0, 0, 1), 0.36),
    Part.Circle(Vector(76.92, 229.74, 0), Vector(0, 0, 1), 0.36),
    Part.Circle(Vector(76.92, 227.23, 0), Vector(0, 0, 1), 0.36),
    Part.Circle(Vector(79.42, 229.74, 0), Vector(0, 0, 1), 0.36),
    Part.Circle(Vector(79.42, 227.23, 0), Vector(0, 0, 1), 0.36),
    Part.Circle(Vector(81.92, 229.74, 0), Vector(0, 0, 1), 0.36),
    Part.Circle(Vector(81.92, 227.23, 0), Vector(0, 0, 1), 0.36),
    Part.Circle(Vector(84.42, 229.74, 0), Vector(0, 0, 1), 0.36),
    Part.Circle(Vector(84.42, 227.23, 0), Vector(0, 0, 1), 0.36),
], False)
sketch4.addConstraint([
    Sketcher.Constraint("Equal", 0, 1),
    Sketcher.Constraint("Equal", 1, 2),
    Sketcher.Constraint("Equal", 2, 3),
    Sketcher.Constraint("Equal", 3, 4),
    Sketcher.Constraint("Equal", 4, 5),
    Sketcher.Constraint("Equal", 5, 6),
    Sketcher.Constraint("Equal", 6, 7),
    Sketcher.Constraint("Equal", 7, 8),
    Sketcher.Constraint("Equal", 8, 9),
    Sketcher.Constraint("Equal", 9, 10),
    Sketcher.Constraint("Equal", 10, 11),
    Sketcher.Constraint("Equal", 11, 12),
    Sketcher.Constraint("Equal", 12, 13),
    Sketcher.Constraint("Equal", 13, 14),
    Sketcher.Constraint("Equal", 14, 15),
    Sketcher.Constraint("Equal", 15, 16),
    Sketcher.Constraint("Equal", 16, 17),
    Sketcher.Constraint("Equal", 17, 18),
    Sketcher.Constraint("Equal", 18, 19),
    Sketcher.Constraint("Equal", 19, 20),
    Sketcher.Constraint("Equal", 20, 21),
    Sketcher.Constraint("Equal", 21, 22),
    Sketcher.Constraint("Equal", 22, 23),
    Sketcher.Constraint("Equal", 23, 24),
    Sketcher.Constraint("Equal", 24, 25),
    Sketcher.Constraint("Equal", 25, 26),
    Sketcher.Constraint("Equal", 26, 27),
    Sketcher.Constraint("Equal", 27, 28),
    Sketcher.Constraint("Equal", 28, 29),
    Sketcher.Constraint("Equal", 29, 30),
    Sketcher.Constraint("Equal", 30, 31),
    Sketcher.Constraint("Equal", 31, 32),
    Sketcher.Constraint("Equal", 32, 33),
    Sketcher.Constraint("Equal", 33, 34),
    Sketcher.Constraint("Equal", 34, 35),
    Sketcher.Constraint("Equal", 35, 36),
    Sketcher.Constraint("Equal", 36, 37),
    Sketcher.Constraint("Equal", 37, 38),
    Sketcher.Constraint("Equal", 38, 39),
    Sketcher.Constraint("Horizontal", 0, 3, 2, 3),
    Sketcher.Constraint("Horizontal", 1, 3, 3, 3),
    Sketcher.Constraint("Horizontal", 2, 3, 4, 3),
    Sketcher.Constraint("Horizontal", 3, 3, 5, 3),
    Sketcher.Constraint("Horizontal", 4, 3, 6, 3),
    Sketcher.Constraint("Horizontal", 5, 3, 7, 3),
    Sketcher.Constraint("Horizontal", 6, 3, 8, 3),
    Sketcher.Constraint("Horizontal", 7, 3, 9, 3),
    Sketcher.Constraint("Horizontal", 8, 3, 10, 3),
    Sketcher.Constraint("Horizontal", 9, 3, 11, 3),
    Sketcher.Constraint("Horizontal", 10, 3, 12, 3),
    Sketcher.Constraint("Horizontal", 11, 3, 13, 3),
    Sketcher.Constraint("Horizontal", 12, 3, 14, 3),
    Sketcher.Constraint("Horizontal", 13, 3, 15, 3),
    Sketcher.Constraint("Horizontal", 14, 3, 16, 3),
    Sketcher.Constraint("Horizontal", 15, 3, 17, 3),
    Sketcher.Constraint("Horizontal", 16, 3, 18, 3),
    Sketcher.Constraint("Horizontal", 17, 3, 19, 3),
    Sketcher.Constraint("Horizontal", 18, 3, 20, 3),
    Sketcher.Constraint("Horizontal", 19, 3, 21, 3),
    Sketcher.Constraint("Horizontal", 20, 3, 22, 3),
    Sketcher.Constraint("Horizontal", 21, 3, 23, 3),
    Sketcher.Constraint("Horizontal", 22, 3, 24, 3),
    Sketcher.Constraint("Horizontal", 23, 3, 25, 3),
    Sketcher.Constraint("Horizontal", 24, 3, 26, 3),
    Sketcher.Constraint("Horizontal", 25, 3, 27, 3),
    Sketcher.Constraint("Horizontal", 26, 3, 28, 3),
    Sketcher.Constraint("Horizontal", 27, 3, 29, 3),
    Sketcher.Constraint("Horizontal", 28, 3, 30, 3),
    Sketcher.Constraint("Horizontal", 29, 3, 31, 3),
    Sketcher.Constraint("Horizontal", 30, 3, 32, 3),
    Sketcher.Constraint("Horizontal", 31, 3, 33, 3),
    Sketcher.Constraint("Horizontal", 32, 3, 34, 3),
    Sketcher.Constraint("Horizontal", 33, 3, 35, 3),
    Sketcher.Constraint("Horizontal", 34, 3, 36, 3),
    Sketcher.Constraint("Horizontal", 35, 3, 37, 3),
    Sketcher.Constraint("Horizontal", 36, 3, 38, 3),
    Sketcher.Constraint("Horizontal", 37, 3, 39, 3),
    Sketcher.Constraint("Vertical", 0, 3, 1, 3),
    Sketcher.Constraint("Vertical", 2, 3, 3, 3),
    Sketcher.Constraint("Vertical", 4, 3, 5, 3),
    Sketcher.Constraint("Vertical", 6, 3, 7, 3),
    Sketcher.Constraint("Vertical", 8, 3, 9, 3),
    Sketcher.Constraint("Vertical", 10, 3, 11, 3),
    Sketcher.Constraint("Vertical", 12, 3, 13, 3),
    Sketcher.Constraint("Vertical", 14, 3, 15, 3),
    Sketcher.Constraint("Vertical", 16, 3, 17, 3),
    Sketcher.Constraint("Vertical", 18, 3, 19, 3),
    Sketcher.Constraint("Vertical", 20, 3, 21, 3),
    Sketcher.Constraint("Vertical", 22, 3, 23, 3),
    Sketcher.Constraint("Vertical", 24, 3, 25, 3),
    Sketcher.Constraint("Vertical", 26, 3, 27, 3),
    Sketcher.Constraint("Vertical", 28, 3, 29, 3),
    Sketcher.Constraint("Vertical", 30, 3, 31, 3),
    Sketcher.Constraint("Vertical", 32, 3, 33, 3),
    Sketcher.Constraint("Vertical", 34, 3, 35, 3),
    Sketcher.Constraint("Vertical", 36, 3, 37, 3),
    Sketcher.Constraint("Vertical", 38, 3, 39, 3),
    Sketcher.Constraint("DistanceX", 0, 3, 4, 3, 5.0),
    Sketcher.Constraint("DistanceX", 2, 3, 6, 3, 5.0),
    Sketcher.Constraint("DistanceX", 4, 3, 8, 3, 5.0),
    Sketcher.Constraint("DistanceX", 6, 3, 10, 3, 5.0),
    Sketcher.Constraint("DistanceX", 8, 3, 12, 3, 5.0),
    Sketcher.Constraint("DistanceX", 10, 3, 14, 3, 5.0),
    Sketcher.Constraint("DistanceX", 12, 3, 16, 3, 5.0),
    Sketcher.Constraint("DistanceX", 14, 3, 18, 3, 5.0),
    Sketcher.Constraint("DistanceX", 16, 3, 20, 3, 5.0),
    Sketcher.Constraint("DistanceX", 18, 3, 22, 3, 5.0),
    Sketcher.Constraint("DistanceX", 20, 3, 24, 3, 5.0),
    Sketcher.Constraint("DistanceX", 22, 3, 26, 3, 5.0),
    Sketcher.Constraint("DistanceX", 24, 3, 28, 3, 5.0),
    Sketcher.Constraint("DistanceX", 26, 3, 30, 3, 5.0),
    Sketcher.Constraint("DistanceX", 28, 3, 32, 3, 5.0),
    Sketcher.Constraint("DistanceX", 30, 3, 34, 3, 5.0),
    Sketcher.Constraint("DistanceX", 32, 3, 36, 3, 5.0),
    Sketcher.Constraint("DistanceX", 34, 3, 38, 3, 5.0),
    Sketcher.Constraint("DistanceX", 0, 3, 2, 3, 2.5),
    Sketcher.Constraint("Diameter", 0, 0.722791),
    Sketcher.Constraint("DistanceX", -1, 1, 0, 3, 36.923631),
    Sketcher.Constraint("DistanceY", -1, 1, 1, 3, 227.230181),
    Sketcher.Constraint("DistanceY", -1, 1, 0, 3, 229.735045),
])
pad4 = body.newObject("PartDesign::Pad", "Pad003")
pad4.Profile = sketch4
pad4.Length = 3

sketch5 = body.newObject("Sketcher::SketchObject", "Sketch004")
sketch5.AttachmentSupport = (doc.getObject("XY_Plane"), [""])
sketch5.MapMode = "FlatFace"
sketch5.AttachmentOffset = App.Placement(Vector(0, 0, 2), App.Rotation())
sketch5.addGeometry([
    Part.LineSegment(Vector(49.02, 214.8, 0), Vector(48.49, 214.27, 0)),
    Part.LineSegment(Vector(48.49, 214.27, 0), Vector(48.49, 200.5, 0)),
    Part.LineSegment(Vector(48.49, 200.5, 0), Vector(62.79, 200.5, 0)),
    Part.LineSegment(Vector(62.79, 200.5, 0), Vector(62.79, 214.8, 0)),
    Part.LineSegment(Vector(62.79, 214.8, 0), Vector(49.02, 214.8, 0)),
    Part.LineSegment(Vector(92.07, 213.57, 0), Vector(91.8, 213.78, 0)),
    Part.LineSegment(Vector(91.8, 213.78, 0), Vector(83.9, 213.78, 0)),
    Part.LineSegment(Vector(83.9, 213.78, 0), Vector(83.9, 205.59, 0)),
    Part.LineSegment(Vector(83.9, 205.59, 0), Vector(92.07, 205.59, 0)),
    Part.LineSegment(Vector(92.07, 205.59, 0), Vector(92.07, 213.57, 0)),
], False)
sketch5.addConstraint([
    Sketcher.Constraint("Coincident", 0, 2, 1, 1),
    Sketcher.Constraint("Coincident", 1, 2, 2, 1),
    Sketcher.Constraint("Coincident", 2, 2, 3, 1),
    Sketcher.Constraint("Coincident", 3, 2, 4, 1),
    Sketcher.Constraint("Coincident", 4, 2, 0, 1),
    Sketcher.Constraint("Coincident", 5, 2, 6, 1),
    Sketcher.Constraint("Coincident", 6, 2, 7, 1),
    Sketcher.Constraint("Coincident", 7, 2, 8, 1),
    Sketcher.Constraint("Coincident", 8, 2, 9, 1),
    Sketcher.Constraint("Coincident", 9, 2, 5, 1),
    Sketcher.Constraint("Vertical", 1),
    Sketcher.Constraint("Horizontal", 2),
    Sketcher.Constraint("Vertical", 3),
    Sketcher.Constraint("Horizontal", 4),
    Sketcher.Constraint("Horizontal", 6),
    Sketcher.Constraint("Vertical", 7),
    Sketcher.Constraint("Horizontal", 8),
    Sketcher.Constraint("Vertical", 9),
    Sketcher.Constraint("Equal", 4, 1),
    Sketcher.Constraint("Equal", 2, 3),
    Sketcher.Constraint("DistanceX", 2, 1, 2, 2, 14.3),
    Sketcher.Constraint("DistanceX", 8, 1, 8, 2, 8.17),
    Sketcher.Constraint("DistanceY", 7, 2, 7, 1, 8.19),
    Sketcher.Constraint("DistanceY", -1, 1, 5, 2, 213.783802),
    Sketcher.Constraint("DistanceX", 4, 2, 6, 2, 34.888299),
    Sketcher.Constraint("Distance", 0, 0.746641),
    Sketcher.Constraint("Distance", 5, 0.343632),
    Sketcher.Constraint("DistanceX", 6, 2, 6, 1, 7.899063),
    Sketcher.Constraint("DistanceY", -1, 1, 0, 2, 214.26881),
    Sketcher.Constraint("DistanceX", -1, 1, 4, 2, 49.016471),
])
pad5 = body.newObject("PartDesign::Pad", "Pad004")
pad5.Profile = sketch5
pad5.Length = 1

sketch6 = body.newObject("Sketcher::SketchObject", "Sketch005")
sketch6.AttachmentSupport = (doc.getObject("XY_Plane"), [""])
sketch6.MapMode = "FlatFace"
sketch6.addGeometry([
    Part.LineSegment(Vector(77.6, 215.5, 0), Vector(77.9, 215.1, 0)),
    Part.LineSegment(Vector(77.9, 215.1, 0), Vector(77.9, 203.3, 0)),
    Part.LineSegment(Vector(77.9, 203.3, 0), Vector(65.8, 203.3, 0)),
    Part.LineSegment(Vector(65.8, 203.3, 0), Vector(65.8, 215.5, 0)),
    Part.LineSegment(Vector(65.8, 215.5, 0), Vector(77.6, 215.5, 0)),
], False)
sketch6.addConstraint([
    Sketcher.Constraint("Coincident", 0, 2, 1, 1),
    Sketcher.Constraint("Coincident", 1, 2, 2, 1),
    Sketcher.Constraint("Coincident", 2, 2, 3, 1),
    Sketcher.Constraint("Coincident", 3, 2, 4, 1),
    Sketcher.Constraint("Coincident", 4, 2, 0, 1),
    Sketcher.Constraint("Vertical", 1),
    Sketcher.Constraint("Horizontal", 2),
    Sketcher.Constraint("Vertical", 3),
    Sketcher.Constraint("Horizontal", 4),
    Sketcher.Constraint("Angle", 0, Q("-45 deg")),
    Sketcher.Constraint("DistanceX", 2, 2, 2, 1, 12.074831),
    Sketcher.Constraint("DistanceX", 4, 1, 4, 2, 11.720881),
    Sketcher.Constraint("DistanceY", 1, 2, 1, 1, 11.792755),
    Sketcher.Constraint("DistanceX", -1, 1, 0, 2, 77.907459),
    Sketcher.Constraint("DistanceY", -1, 1, 0, 2, 215.11993),
])
pad6 = body.newObject("PartDesign::Pad", "Pad005")
pad6.Profile = sketch6
pad6.Length = 1
pad6.Reversed = True

sketch7 = body.newObject("Sketcher::SketchObject", "Sketch006")
sketch7.AttachmentSupport = (doc.getObject("XY_Plane"), [""])
sketch7.MapMode = "FlatFace"
sketch7.AttachmentOffset = App.Placement(Vector(0, 0, 2), App.Rotation())
sketch7.addGeometry([
    Part.Circle(Vector(32.7, 228.3, 0), Vector(0, 0, 1), 1.3),
    Part.Circle(Vector(32.7, 180.4, 0), Vector(0, 0, 1), 1.3),
    Part.Circle(Vector(89.3, 180.3, 0), Vector(0, 0, 1), 1.3),
    Part.Circle(Vector(89.5, 228.1, 0), Vector(0, 0, 1), 1.4),
], False)
sketch7.addConstraint([
    Sketcher.Constraint("Vertical", 0, 3, 1, 3),
    Sketcher.Constraint("Diameter", 0, 2.656488),
    Sketcher.Constraint("Diameter", 1, 2.547864),
    Sketcher.Constraint("Diameter", 2, 2.615187),
    Sketcher.Constraint("Diameter", 3, 2.708436),
    Sketcher.Constraint("DistanceX", 1, 3, 2, 3, 56.644801),
    Sketcher.Constraint("DistanceX", -1, 1, 3, 3, 89.485149),
    Sketcher.Constraint("DistanceY", 1, 3, 0, 3, 47.89512),
    Sketcher.Constraint("DistanceY", 2, 3, 1, 3, 0.070561),
    Sketcher.Constraint("DistanceY", 2, 3, 3, 3, 47.855551),
    Sketcher.Constraint("DistanceX", -1, 1, 0, 3, 32.694134),
    Sketcher.Constraint("DistanceY", -1, 1, 0, 3, 228.255987),
])
pocket1 = body.newObject("PartDesign::Pocket", "Pocket")
pocket1.Profile = sketch7
pocket1.Length = 21

sketch8 = body.newObject("Sketcher::SketchObject", "Sketch007")
sketch8.AttachmentSupport = (doc.getObject("XY_Plane"), [""])
sketch8.MapMode = "FlatFace"
sketch8.addGeometry([
    Part.LineSegment(Vector(42, 210, 0), Vector(42, 199, 0)),
    Part.LineSegment(Vector(42, 199, 0), Vector(30, 199, 0)),
    Part.LineSegment(Vector(30, 199, 0), Vector(30, 210, 0)),
    Part.LineSegment(Vector(30, 210, 0), Vector(42, 210, 0)),
], False)
sketch8.addConstraint([
    Sketcher.Constraint("Coincident", 0, 2, 1, 1),
    Sketcher.Constraint("Coincident", 1, 2, 2, 1),
    Sketcher.Constraint("Coincident", 2, 2, 3, 1),
    Sketcher.Constraint("Coincident", 3, 2, 0, 1),
    Sketcher.Constraint("Vertical", 0),
    Sketcher.Constraint("Horizontal", 1),
    Sketcher.Constraint("Vertical", 2),
    Sketcher.Constraint("Horizontal", 3),
    Sketcher.Constraint("DistanceY", 0, 2, 0, 1, 11.16425),
    Sketcher.Constraint("DistanceX", 1, 2, 1, 1, 11.521915),
    Sketcher.Constraint("DistanceX", -1, 1, 0, 2, 41.959859),
    Sketcher.Constraint("DistanceY", -1, 1, 0, 2, 198.546237),
])
pad7 = body.newObject("PartDesign::Pad", "Pad006")
pad7.Profile = sketch8
pad7.Length = 0.6
pad7.Reversed = True

sketch9 = body.newObject("Sketcher::SketchObject", "Sketch008")
sketch9.AttachmentSupport = (doc.getObject("YZ_Plane"), [""])
sketch9.MapMode = "FlatFace"
sketch9.AttachmentOffset = App.Placement(Vector(0, 0, 30.437944), App.Rotation())
sketch9.addGeometry([
    Part.LineSegment(Vector(209.6, -0.5, 0), Vector(198.6, -0.5, 0)),
    Part.LineSegment(Vector(198.6, -0.5, 0), Vector(198.6, 0, 0)),
    Part.LineSegment(Vector(198.6, 0, 0), Vector(209.6, 0, 0)),
    Part.LineSegment(Vector(209.6, 0, 0), Vector(209.6, -0.5, 0)),
], False)
sketch9.addConstraint([
    Sketcher.Constraint("Coincident", 0, 2, 1, 1),
    Sketcher.Constraint("Coincident", 1, 2, 2, 1),
    Sketcher.Constraint("Coincident", 2, 2, 3, 1),
    Sketcher.Constraint("Coincident", 3, 2, 0, 1),
    Sketcher.Constraint("Horizontal", 0),
    Sketcher.Constraint("Vertical", 1),
    Sketcher.Constraint("Horizontal", 2),
    Sketcher.Constraint("Vertical", 3),
    Sketcher.Constraint("PointOnObject", 1, 2, -1),
    Sketcher.Constraint("DistanceX", 0, 2, 0, 1, 11.0),
    Sketcher.Constraint("DistanceY", 1, 1, 1, 2, 0.5),
    Sketcher.Constraint("DistanceX", -1, 1, 0, 2, 198.621345),
])
pocket2 = body.newObject("PartDesign::Pocket", "Pocket001")
pocket2.Profile = sketch9
pocket2.Length = 11
pocket2.Reversed = True

doc.recompute()
